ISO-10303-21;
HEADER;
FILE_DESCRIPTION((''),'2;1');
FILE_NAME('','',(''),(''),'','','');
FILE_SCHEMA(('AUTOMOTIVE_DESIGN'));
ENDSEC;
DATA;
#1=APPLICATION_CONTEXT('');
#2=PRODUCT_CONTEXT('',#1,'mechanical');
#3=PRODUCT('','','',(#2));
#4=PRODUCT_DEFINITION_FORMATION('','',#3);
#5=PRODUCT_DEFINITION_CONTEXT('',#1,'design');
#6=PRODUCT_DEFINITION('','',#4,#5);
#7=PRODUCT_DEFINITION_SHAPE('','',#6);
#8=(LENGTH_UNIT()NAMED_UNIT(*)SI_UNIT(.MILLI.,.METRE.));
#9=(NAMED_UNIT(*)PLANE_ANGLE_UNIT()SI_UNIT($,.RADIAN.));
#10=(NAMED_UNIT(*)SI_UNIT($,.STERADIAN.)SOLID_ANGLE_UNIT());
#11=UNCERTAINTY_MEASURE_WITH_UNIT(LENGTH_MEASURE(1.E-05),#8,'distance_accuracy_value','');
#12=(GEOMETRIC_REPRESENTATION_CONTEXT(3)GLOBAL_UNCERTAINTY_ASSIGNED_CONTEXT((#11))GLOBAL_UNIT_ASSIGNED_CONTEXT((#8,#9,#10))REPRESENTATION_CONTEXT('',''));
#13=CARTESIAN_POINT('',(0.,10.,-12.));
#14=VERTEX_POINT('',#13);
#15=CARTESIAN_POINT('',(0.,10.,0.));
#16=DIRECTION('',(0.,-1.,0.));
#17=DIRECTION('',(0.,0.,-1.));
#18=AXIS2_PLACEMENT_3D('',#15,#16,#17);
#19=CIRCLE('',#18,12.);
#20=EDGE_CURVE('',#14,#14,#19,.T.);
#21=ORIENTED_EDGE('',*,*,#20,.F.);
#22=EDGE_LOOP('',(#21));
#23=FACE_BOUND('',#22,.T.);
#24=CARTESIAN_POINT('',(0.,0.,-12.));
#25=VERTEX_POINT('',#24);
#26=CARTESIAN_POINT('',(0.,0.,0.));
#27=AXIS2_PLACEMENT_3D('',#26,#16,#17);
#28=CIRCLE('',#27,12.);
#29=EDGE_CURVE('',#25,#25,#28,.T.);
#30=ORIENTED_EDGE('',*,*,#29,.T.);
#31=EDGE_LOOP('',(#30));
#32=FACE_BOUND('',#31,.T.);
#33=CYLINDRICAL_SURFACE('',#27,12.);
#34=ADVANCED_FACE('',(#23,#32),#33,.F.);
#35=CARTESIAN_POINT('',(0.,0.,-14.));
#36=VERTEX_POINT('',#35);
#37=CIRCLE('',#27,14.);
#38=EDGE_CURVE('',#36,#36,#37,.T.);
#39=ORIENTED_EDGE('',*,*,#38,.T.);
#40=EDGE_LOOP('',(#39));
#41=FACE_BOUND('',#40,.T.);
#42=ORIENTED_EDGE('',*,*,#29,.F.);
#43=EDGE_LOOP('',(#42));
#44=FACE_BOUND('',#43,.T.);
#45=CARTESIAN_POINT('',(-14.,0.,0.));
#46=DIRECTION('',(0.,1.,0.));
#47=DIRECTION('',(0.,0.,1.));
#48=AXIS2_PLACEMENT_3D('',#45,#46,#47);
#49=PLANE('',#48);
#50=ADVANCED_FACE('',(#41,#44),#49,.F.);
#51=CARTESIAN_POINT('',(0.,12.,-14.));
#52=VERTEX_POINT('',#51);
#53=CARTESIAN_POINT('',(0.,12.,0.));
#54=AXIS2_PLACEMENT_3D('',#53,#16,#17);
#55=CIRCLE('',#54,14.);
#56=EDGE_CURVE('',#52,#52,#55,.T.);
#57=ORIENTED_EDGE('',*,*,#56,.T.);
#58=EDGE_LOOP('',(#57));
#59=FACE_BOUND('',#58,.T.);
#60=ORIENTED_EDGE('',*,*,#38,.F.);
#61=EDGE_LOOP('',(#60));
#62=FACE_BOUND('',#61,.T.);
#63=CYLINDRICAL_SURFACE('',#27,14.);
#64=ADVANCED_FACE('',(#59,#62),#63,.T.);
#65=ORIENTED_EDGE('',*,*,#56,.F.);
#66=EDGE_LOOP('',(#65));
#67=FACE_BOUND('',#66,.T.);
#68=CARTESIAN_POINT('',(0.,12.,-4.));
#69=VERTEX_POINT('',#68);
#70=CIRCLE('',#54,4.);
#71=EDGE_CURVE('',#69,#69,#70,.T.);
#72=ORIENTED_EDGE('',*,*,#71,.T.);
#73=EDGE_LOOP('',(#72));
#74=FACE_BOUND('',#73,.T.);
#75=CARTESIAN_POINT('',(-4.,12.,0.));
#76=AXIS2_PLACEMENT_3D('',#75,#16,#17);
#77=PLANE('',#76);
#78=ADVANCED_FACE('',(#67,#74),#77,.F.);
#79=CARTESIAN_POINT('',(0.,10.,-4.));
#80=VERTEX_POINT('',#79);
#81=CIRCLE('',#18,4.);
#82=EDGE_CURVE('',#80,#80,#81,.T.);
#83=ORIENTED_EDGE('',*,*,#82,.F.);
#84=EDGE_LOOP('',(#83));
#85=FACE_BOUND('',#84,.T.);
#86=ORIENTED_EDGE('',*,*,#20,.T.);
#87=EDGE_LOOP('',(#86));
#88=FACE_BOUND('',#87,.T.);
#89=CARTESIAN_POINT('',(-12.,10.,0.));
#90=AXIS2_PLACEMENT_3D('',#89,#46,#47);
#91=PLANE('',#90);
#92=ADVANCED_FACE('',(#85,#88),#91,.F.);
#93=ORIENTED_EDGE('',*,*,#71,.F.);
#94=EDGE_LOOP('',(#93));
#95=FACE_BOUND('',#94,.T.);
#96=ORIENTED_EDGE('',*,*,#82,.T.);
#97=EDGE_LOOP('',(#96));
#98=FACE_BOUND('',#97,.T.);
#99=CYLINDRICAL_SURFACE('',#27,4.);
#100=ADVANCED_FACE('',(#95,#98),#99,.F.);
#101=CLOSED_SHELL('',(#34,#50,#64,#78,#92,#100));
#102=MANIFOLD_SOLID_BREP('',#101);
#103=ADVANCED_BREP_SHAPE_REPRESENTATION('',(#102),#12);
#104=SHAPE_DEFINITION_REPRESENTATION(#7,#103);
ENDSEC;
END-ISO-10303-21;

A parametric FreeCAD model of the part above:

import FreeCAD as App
import Part
import Sketcher
from FreeCAD import Vector
Q = App.Units.Quantity

doc = App.newDocument("Part")
body = doc.addObject("PartDesign::Body", "Body")

# Sketch on XY plane
sketch1 = body.newObject("Sketcher::SketchObject", "Sketch")
sketch1.AttachmentSupport = (doc.getObject("XY_Plane"), [""])
sketch1.MapMode = "FlatFace"
sketch1.addGeometry(Part.LineSegment(Vector(-12, 0, 0), Vector(-12, 10, 0)), False)
sketch1.addGeometry(Part.LineSegment(Vector(-12, 10, 0), Vector(-4, 10, 0)), False)
sketch1.addGeometry(Part.LineSegment(Vector(-4, 10, 0), Vector(-4, 12, 0)), False)
sketch1.addGeometry(Part.LineSegment(Vector(-4, 12, 0), Vector(-14, 12, 0)), False)
sketch1.addGeometry(Part.LineSegment(Vector(-14, 12, 0), Vector(-14, 0, 0)), False)
sketch1.addGeometry(Part.LineSegment(Vector(-14, 0, 0), Vector(-12, 0, 0)), False)
sketch1.addConstraint(Sketcher.Constraint("Coincident", 0, 2, 1, 1))
sketch1.addConstraint(Sketcher.Constraint("Coincident", 1, 2, 2, 1))
sketch1.addConstraint(Sketcher.Constraint("Coincident", 2, 2, 3, 1))
sketch1.addConstraint(Sketcher.Constraint("Coincident", 3, 2, 4, 1))
sketch1.addConstraint(Sketcher.Constraint("Coincident", 4, 2, 5, 1))
sketch1.addConstraint(Sketcher.Constraint("Coincident", 5, 2, 0, 1))
sketch1.addConstraint(Sketcher.Constraint("Vertical", 0))
sketch1.addConstraint(Sketcher.Constraint("Horizontal", 1))
sketch1.addConstraint(Sketcher.Constraint("Vertical", 2))
sketch1.addConstraint(Sketcher.Constraint("Horizontal", 3))
sketch1.addConstraint(Sketcher.Constraint("Vertical", 4))
sketch1.addConstraint(Sketcher.Constraint("Horizontal", 5))
sketch1.addConstraint(Sketcher.Constraint("PointOnObject", 4, 2, -1))
sketch1.addConstraint(Sketcher.Constraint("Equal", 3, 0))
sketch1.addConstraint(Sketcher.Constraint("Equal", 5, 2))
sketch1.addConstraint(Sketcher.Constraint("DistanceX", 1, 1, 1, 2, Q("8 mm")))
sketch1.addConstraint(Sketcher.Constraint("DistanceX", 3, 2, 3, 1, Q("10 mm")))
sketch1.addConstraint(Sketcher.Constraint("DistanceX", 0, 2, -1, 1, Q("12 mm")))
revolution = body.newObject("PartDesign::Revolution", "Revolution")
revolution.Profile = sketch1
revolution.ReferenceAxis = (sketch1, ["V_Axis"])
revolution.Angle = 360

doc.recompute()
